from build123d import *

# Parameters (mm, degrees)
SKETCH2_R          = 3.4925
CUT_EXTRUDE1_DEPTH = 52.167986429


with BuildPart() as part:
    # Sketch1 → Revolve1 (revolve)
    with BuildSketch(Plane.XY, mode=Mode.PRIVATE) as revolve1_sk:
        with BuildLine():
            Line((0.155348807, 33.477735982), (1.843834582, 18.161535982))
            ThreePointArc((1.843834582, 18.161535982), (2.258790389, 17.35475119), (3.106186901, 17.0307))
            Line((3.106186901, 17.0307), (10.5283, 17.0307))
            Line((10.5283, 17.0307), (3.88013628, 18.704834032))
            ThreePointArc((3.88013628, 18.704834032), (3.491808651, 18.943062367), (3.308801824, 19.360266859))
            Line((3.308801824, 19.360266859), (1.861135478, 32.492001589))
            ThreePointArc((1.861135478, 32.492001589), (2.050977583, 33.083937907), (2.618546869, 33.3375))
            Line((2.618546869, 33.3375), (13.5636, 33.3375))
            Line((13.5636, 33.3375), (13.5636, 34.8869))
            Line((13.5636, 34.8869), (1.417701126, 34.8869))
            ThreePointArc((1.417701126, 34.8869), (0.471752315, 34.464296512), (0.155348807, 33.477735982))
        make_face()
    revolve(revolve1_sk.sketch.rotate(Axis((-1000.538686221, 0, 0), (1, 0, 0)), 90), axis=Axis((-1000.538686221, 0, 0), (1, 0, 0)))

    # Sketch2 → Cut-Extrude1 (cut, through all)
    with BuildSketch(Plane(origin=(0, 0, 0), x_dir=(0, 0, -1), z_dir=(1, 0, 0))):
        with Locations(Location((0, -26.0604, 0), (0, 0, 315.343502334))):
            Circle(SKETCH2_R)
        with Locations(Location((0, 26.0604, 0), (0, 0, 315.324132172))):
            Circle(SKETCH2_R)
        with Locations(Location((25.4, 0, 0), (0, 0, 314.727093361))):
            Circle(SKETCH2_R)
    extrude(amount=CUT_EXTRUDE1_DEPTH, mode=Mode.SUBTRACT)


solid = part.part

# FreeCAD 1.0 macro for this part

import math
import FreeCAD as App
import Part
import Sketcher
from FreeCAD import Vector
Q = App.Units.Quantity

doc = App.newDocument("Part")
body = doc.addObject("PartDesign::Body", "Body")

# Sketch on XY plane
sketch1 = doc.addObject("Sketcher::SketchObject", "Sketch")
body.addObject(sketch1)
sketch1.AttachmentSupport = (doc.XY_Plane, [""])
sketch1.MapMode = "FlatFace"
sketch1.addGeometry([
    Part.LineSegment(Vector(0.155349, 33.477736, 0), Vector(1.843835, 18.161536, 0)),  # 0
    Part.ArcOfCircle(Part.Circle(Vector(3.106187, 18.3007, 0), Vector(0, 0, 1), 1.27), math.radians(-173.709012), math.radians(-90)),  # 1
    Part.LineSegment(Vector(3.106187, 17.0307, 0), Vector(10.5283, 17.0307, 0)),  # 2
    Part.LineSegment(Vector(10.5283, 17.0307, 0), Vector(3.880136, 18.704834, 0)),  # 3
    Part.ArcOfCircle(Part.Circle(Vector(4.066213, 19.443765, 0), Vector(0, 0, 1), 0.762), math.radians(-173.709012), math.radians(-104.134292)),  # 4
    Part.LineSegment(Vector(3.308802, 19.360267, 0), Vector(1.861135, 32.492002, 0)),  # 5
    Part.ArcOfCircle(Part.Circle(Vector(2.618547, 32.5755, 0), Vector(0, 0, 1), 0.762), math.radians(90), math.radians(186.290988)),  # 6
    Part.LineSegment(Vector(2.618547, 33.3375, 0), Vector(13.5636, 33.3375, 0)),  # 7
    Part.LineSegment(Vector(13.5636, 33.3375, 0), Vector(13.5636, 34.8869, 0)),  # 8
    Part.LineSegment(Vector(13.5636, 34.8869, 0), Vector(1.417701, 34.8869, 0)),  # 9
    Part.ArcOfCircle(Part.Circle(Vector(1.417701, 33.6169, 0), Vector(0, 0, 1), 1.27), math.radians(90), math.radians(186.290988)),  # 10
], False)
sketch1.addConstraint([
    Sketcher.Constraint("Coincident", 0, 2, 1, 1),
    Sketcher.Constraint("Coincident", 1, 2, 2, 1),
    Sketcher.Constraint("Coincident", 2, 2, 3, 1),
    Sketcher.Constraint("Coincident", 3, 2, 4, 2),
    Sketcher.Constraint("Coincident", 4, 1, 5, 1),
    Sketcher.Constraint("Coincident", 5, 2, 6, 2),
    Sketcher.Constraint("Coincident", 6, 1, 7, 1),
    Sketcher.Constraint("Coincident", 7, 2, 8, 1),
    Sketcher.Constraint("Coincident", 8, 2, 9, 1),
    Sketcher.Constraint("Coincident", 9, 2, 10, 1),
    Sketcher.Constraint("Coincident", 10, 2, 0, 1),
    Sketcher.Constraint("Horizontal", 2),
    Sketcher.Constraint("Horizontal", 7),
    Sketcher.Constraint("Vertical", 8),
    Sketcher.Constraint("Horizontal", 9),
    Sketcher.Constraint("Radius", 1, Q("0.05 in")),
    Sketcher.Constraint("Radius", 4, Q("0.03 in")),
    Sketcher.Constraint("Radius", 6, Q("0.03 in")),
    Sketcher.Constraint("Radius", 10, Q("0.05 in")),
    Sketcher.Constraint("DistanceY", 8, 1, 8, 2, Q("0.061 in")),
    Sketcher.Constraint("DistanceY", -1, 1, 6, 1, Q("1.3125 in")),
    Sketcher.Constraint("DistanceX", -1, 1, 7, 2, Q("0.534 in")),
    Sketcher.Constraint("DistanceY", 1, 3, 6, 3, Q("0.562 in")),
    Sketcher.Constraint("DistanceX", 9, 2, 9, 1, 12.145899),
    Sketcher.Constraint("DistanceX", -1, 1, 2, 2, Q("0.4145 in")),
    Sketcher.Constraint("DistanceX", -1, 1, 10, 3, 1.417701),
    Sketcher.Constraint("DistanceX", -1, 1, 4, 1, 3.308802),
    Sketcher.Constraint("DistanceY", -1, 1, 5, 2, 32.492002),
    Sketcher.Constraint("DistanceX", 0, 2, 3, 2, 2.036302),
    Sketcher.Constraint("DistanceY", 0, 2, 3, 2, 0.543298),
    Sketcher.Constraint("DistanceY", 4, 1, 4, 3, 0.083498),
    Sketcher.Constraint("DistanceX", 5, 2, 3, 2, 2.019001),
    Sketcher.Constraint("DistanceX", 10, 2, 6, 1, 2.463198),
    Sketcher.Constraint("DistanceX", 10, 2, 6, 3, 2.463198),
    Sketcher.Constraint("Distance", 0, 15.40899),
    Sketcher.Constraint("Distance", 5, 13.21129),
    Sketcher.Constraint("DistanceX", 2, 1, 2, 2, 7.422113),
])
revolution = doc.addObject("PartDesign::Revolution", "Revolution")
body.addObject(revolution)
revolution.Profile = sketch1
revolution.ReferenceAxis = (sketch1, ["H_Axis"])
revolution.Angle = 360

# Sketch on YZ plane
sketch2 = doc.addObject("Sketcher::SketchObject", "Sketch001")
body.addObject(sketch2)
sketch2.AttachmentSupport = (doc.YZ_Plane, [""])
sketch2.MapMode = "FlatFace"
sketch2.addGeometry([
    Part.Circle(Vector(-26.1, 0, 0), Vector(0, 0, 1), 3.5),
    Part.Circle(Vector(26.1, 0, 0), Vector(0, 0, 1), 3.5),
    Part.Circle(Vector(0, -25.4, 0), Vector(0, 0, 1), 3.5),
], False)
sketch2.addConstraint([
    Sketcher.Constraint("Equal", 0, 1),
    Sketcher.Constraint("Equal", 1, 2),
    Sketcher.Constraint("Symmetric", 0, 3, 1, 3, -1, 1),
    Sketcher.Constraint("PointOnObject", 0, 3, -1),
    Sketcher.Constraint("PointOnObject", 2, 3, -2),
    Sketcher.Constraint("Diameter", 0, Q("0.275 in")),
    Sketcher.Constraint("DistanceY", 2, 3, -1, 1, Q("1 in")),
    Sketcher.Constraint("DistanceX", 0, 3, -1, 1, Q("1.026 in")),
])
pocket1 = doc.addObject("PartDesign::Pocket", "Pocket")
body.addObject(pocket1)
pocket1.Profile = sketch2
pocket1.Type = "ThroughAll"
pocket1.Reversed = True

doc.recompute()
